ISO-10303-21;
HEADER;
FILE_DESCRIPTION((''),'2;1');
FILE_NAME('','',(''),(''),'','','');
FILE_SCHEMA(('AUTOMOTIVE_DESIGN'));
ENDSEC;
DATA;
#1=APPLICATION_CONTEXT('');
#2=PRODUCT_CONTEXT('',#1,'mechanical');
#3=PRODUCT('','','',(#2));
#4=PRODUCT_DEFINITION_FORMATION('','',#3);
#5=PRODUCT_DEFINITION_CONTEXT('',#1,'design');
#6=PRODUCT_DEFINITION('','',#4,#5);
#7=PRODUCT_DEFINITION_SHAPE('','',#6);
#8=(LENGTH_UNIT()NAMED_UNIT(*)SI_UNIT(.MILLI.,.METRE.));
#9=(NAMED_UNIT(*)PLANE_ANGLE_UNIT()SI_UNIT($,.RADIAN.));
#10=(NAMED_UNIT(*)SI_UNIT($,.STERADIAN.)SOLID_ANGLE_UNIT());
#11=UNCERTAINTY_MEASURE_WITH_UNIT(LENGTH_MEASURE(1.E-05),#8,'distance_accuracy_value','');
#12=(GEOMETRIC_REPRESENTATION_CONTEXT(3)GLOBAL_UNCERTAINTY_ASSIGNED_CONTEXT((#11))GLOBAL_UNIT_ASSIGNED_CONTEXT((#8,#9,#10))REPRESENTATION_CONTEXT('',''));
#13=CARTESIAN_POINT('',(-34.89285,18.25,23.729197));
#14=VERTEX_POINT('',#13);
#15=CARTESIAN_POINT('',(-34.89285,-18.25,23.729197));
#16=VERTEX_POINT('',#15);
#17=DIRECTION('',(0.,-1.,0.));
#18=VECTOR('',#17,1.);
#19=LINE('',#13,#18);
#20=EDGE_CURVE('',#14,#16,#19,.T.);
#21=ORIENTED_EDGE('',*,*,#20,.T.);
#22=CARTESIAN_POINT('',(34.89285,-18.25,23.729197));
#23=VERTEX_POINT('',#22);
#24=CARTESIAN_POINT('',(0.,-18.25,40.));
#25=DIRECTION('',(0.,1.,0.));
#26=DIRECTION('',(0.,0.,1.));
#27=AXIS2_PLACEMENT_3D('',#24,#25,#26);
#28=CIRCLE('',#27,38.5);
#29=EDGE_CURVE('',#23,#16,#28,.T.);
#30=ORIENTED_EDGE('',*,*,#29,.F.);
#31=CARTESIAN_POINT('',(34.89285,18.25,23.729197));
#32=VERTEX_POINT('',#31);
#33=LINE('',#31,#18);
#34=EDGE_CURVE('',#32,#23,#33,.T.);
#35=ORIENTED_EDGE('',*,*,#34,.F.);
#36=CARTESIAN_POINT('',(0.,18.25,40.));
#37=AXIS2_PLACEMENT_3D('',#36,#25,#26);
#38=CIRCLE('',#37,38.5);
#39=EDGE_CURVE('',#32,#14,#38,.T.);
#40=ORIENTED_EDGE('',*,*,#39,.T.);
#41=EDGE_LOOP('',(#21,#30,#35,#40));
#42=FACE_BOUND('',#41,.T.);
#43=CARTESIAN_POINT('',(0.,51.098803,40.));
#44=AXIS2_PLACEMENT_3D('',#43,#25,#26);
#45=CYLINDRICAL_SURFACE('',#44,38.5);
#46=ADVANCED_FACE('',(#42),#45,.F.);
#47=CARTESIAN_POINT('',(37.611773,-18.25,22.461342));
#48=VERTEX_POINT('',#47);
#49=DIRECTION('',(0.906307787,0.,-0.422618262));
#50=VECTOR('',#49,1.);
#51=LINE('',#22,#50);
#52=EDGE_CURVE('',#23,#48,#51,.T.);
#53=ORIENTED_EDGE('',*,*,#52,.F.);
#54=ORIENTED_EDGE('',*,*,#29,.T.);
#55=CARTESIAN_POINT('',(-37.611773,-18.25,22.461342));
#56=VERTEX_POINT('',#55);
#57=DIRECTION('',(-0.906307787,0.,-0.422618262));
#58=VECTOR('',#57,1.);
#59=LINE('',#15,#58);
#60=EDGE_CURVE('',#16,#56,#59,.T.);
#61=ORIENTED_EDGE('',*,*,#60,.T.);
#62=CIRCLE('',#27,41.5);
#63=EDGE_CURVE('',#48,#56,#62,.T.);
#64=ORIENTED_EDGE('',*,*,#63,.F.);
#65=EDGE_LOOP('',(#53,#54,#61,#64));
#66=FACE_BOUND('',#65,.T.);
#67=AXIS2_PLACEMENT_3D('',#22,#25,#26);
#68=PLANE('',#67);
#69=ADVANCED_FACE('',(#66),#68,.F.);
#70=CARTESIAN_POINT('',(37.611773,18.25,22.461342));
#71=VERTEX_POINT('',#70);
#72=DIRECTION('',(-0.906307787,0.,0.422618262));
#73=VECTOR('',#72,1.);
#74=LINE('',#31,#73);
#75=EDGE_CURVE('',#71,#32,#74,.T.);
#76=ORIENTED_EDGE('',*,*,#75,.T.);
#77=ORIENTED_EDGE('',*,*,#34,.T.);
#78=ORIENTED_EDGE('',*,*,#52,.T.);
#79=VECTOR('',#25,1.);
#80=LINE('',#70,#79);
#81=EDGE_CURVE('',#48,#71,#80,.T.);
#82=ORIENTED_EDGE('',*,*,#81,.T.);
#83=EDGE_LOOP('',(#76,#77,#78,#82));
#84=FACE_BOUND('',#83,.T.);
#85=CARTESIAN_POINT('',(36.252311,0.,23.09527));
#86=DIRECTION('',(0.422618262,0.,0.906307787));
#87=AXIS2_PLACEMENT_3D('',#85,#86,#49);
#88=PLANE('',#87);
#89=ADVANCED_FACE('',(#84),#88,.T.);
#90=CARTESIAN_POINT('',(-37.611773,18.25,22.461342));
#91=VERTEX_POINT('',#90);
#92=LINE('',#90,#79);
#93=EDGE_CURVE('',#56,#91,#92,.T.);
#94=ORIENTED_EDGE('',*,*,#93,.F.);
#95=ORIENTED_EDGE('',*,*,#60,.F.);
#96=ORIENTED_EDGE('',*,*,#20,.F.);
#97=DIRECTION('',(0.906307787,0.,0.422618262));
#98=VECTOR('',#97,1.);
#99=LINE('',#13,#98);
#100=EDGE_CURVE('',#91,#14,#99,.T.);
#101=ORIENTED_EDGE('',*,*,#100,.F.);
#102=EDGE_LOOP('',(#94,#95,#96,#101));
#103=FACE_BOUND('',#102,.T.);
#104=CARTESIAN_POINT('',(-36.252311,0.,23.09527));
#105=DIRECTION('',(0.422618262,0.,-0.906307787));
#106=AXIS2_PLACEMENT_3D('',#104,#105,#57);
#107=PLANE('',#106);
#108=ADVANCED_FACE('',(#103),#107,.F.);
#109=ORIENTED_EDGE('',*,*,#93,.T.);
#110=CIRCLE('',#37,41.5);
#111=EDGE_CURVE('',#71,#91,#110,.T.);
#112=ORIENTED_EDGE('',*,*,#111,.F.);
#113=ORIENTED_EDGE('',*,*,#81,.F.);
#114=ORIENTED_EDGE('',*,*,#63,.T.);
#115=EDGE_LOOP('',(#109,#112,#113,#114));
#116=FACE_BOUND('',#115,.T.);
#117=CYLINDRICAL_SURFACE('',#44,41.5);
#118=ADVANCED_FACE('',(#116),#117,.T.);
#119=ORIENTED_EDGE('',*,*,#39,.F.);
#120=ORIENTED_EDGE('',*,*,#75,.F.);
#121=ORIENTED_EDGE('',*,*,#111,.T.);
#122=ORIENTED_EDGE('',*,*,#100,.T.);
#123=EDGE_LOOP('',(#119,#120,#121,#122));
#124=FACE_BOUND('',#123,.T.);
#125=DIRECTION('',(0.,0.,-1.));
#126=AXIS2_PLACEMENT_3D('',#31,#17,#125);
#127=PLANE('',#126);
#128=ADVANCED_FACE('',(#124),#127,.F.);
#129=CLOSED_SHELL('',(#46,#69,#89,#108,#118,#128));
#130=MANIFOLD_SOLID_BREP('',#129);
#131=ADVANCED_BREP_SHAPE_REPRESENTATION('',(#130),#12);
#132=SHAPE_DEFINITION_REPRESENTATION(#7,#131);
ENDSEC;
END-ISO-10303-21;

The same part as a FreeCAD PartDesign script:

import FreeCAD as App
import Part
import Sketcher

doc = App.newDocument("Part")
body = doc.addObject("PartDesign::Body", "Body")

sketch1 = doc.addObject("Sketcher::SketchObject", "Sketch")
body.addObject(sketch1)
sketch1.AttachmentSupport = (doc.YZ_Plane, [""])
sketch1.MapMode = "FlatFace"
sketch1.addGeometry(Part.LineSegment(App.Vector(18.2, 1.5, 0), App.Vector(-18.2, 1.5, 0)), False)
sketch1.addGeometry(Part.LineSegment(App.Vector(-18.2, 1.5, 0), App.Vector(-18.2, -1.5, 0)), False)
sketch1.addGeometry(Part.LineSegment(App.Vector(-18.2, -1.5, 0), App.Vector(18.2, -1.5, 0)), False)
sketch1.addGeometry(Part.LineSegment(App.Vector(18.2, -1.5, 0), App.Vector(18.2, 1.5, 0)), False)
sketch1.addGeometry(Part.LineSegment(App.Vector(18.2, 40, 0), App.Vector(-18.2, 40, 0)), True)
sketch1.addConstraint(Sketcher.Constraint("Coincident", 0, 2, 1, 1))
sketch1.addConstraint(Sketcher.Constraint("Coincident", 1, 2, 2, 1))
sketch1.addConstraint(Sketcher.Constraint("Coincident", 2, 2, 3, 1))
sketch1.addConstraint(Sketcher.Constraint("Coincident", 3, 2, 0, 1))
sketch1.addConstraint(Sketcher.Constraint("Horizontal", 0))
sketch1.addConstraint(Sketcher.Constraint("Vertical", 1))
sketch1.addConstraint(Sketcher.Constraint("Horizontal", 2))
sketch1.addConstraint(Sketcher.Constraint("Vertical", 3))
sketch1.addConstraint(Sketcher.Constraint("Horizontal", 4))
sketch1.addConstraint(Sketcher.Constraint("Symmetric", 0, 2, 2, 2, -1, 1))
sketch1.addConstraint(Sketcher.Constraint("Vertical", 3, 2, 4, 1))
sketch1.addConstraint(Sketcher.Constraint("Vertical", 1, 2, 4, 2))
sketch1.addConstraint(Sketcher.Constraint("DistanceY", 1, 2, 1, 1, 3.0))
sketch1.addConstraint(Sketcher.Constraint("DistanceX", 0, 2, 0, 1, 36.5))
sketch1.addConstraint(Sketcher.Constraint("DistanceY", -1, 1, 4, 1, 40.0))
revolution = doc.addObject("PartDesign::Revolution", "Revolution")
body.addObject(revolution)
revolution.Profile = sketch1
revolution.ReferenceAxis = (sketch1, ["Axis0"])
revolution.Angle = 65

sketch2 = doc.addObject("Sketcher::SketchObject", "Sketch001")
body.addObject(sketch2)
sketch2.AttachmentSupport = (doc.YZ_Plane, [""])
sketch2.MapMode = "FlatFace"
sketch2.addGeometry(Part.LineSegment(App.Vector(18.2, 1.5, 0), App.Vector(-18.2, 1.5, 0)), False)
sketch2.addGeometry(Part.LineSegment(App.Vector(-18.2, 1.5, 0), App.Vector(-18.2, -1.5, 0)), False)
sketch2.addGeometry(Part.LineSegment(App.Vector(-18.2, -1.5, 0), App.Vector(18.2, -1.5, 0)), False)
sketch2.addGeometry(Part.LineSegment(App.Vector(18.2, -1.5, 0), App.Vector(18.2, 1.5, 0)), False)
sketch2.addGeometry(Part.LineSegment(App.Vector(-18.2, 40, 0), App.Vector(18.2, 40, 0)), True)
sketch2.addConstraint(Sketcher.Constraint("Coincident", 0, 2, 1, 1))
sketch2.addConstraint(Sketcher.Constraint("Coincident", 1, 2, 2, 1))
sketch2.addConstraint(Sketcher.Constraint("Coincident", 2, 2, 3, 1))
sketch2.addConstraint(Sketcher.Constraint("Coincident", 3, 2, 0, 1))
sketch2.addConstraint(Sketcher.Constraint("Horizontal", 0))
sketch2.addConstraint(Sketcher.Constraint("Vertical", 1))
sketch2.addConstraint(Sketcher.Constraint("Horizontal", 2))
sketch2.addConstraint(Sketcher.Constraint("Vertical", 3))
sketch2.addConstraint(Sketcher.Constraint("Horizontal", 4))
sketch2.addConstraint(Sketcher.Constraint("Symmetric", 0, 2, 2, 2, -1, 1))
sketch2.addConstraint(Sketcher.Constraint("Vertical", 1, 2, 4, 1))
sketch2.addConstraint(Sketcher.Constraint("Vertical", 3, 2, 4, 2))
sketch2.addConstraint(Sketcher.Constraint("DistanceY", 1, 2, 1, 1, 3.0))
sketch2.addConstraint(Sketcher.Constraint("DistanceX", 0, 2, 0, 1, 36.5))
sketch2.addConstraint(Sketcher.Constraint("DistanceY", -1, 1, 4, 1, 40.0))
revolution2 = doc.addObject("PartDesign::Revolution", "Revolution001")
body.addObject(revolution2)
revolution2.Profile = sketch2
revolution2.ReferenceAxis = (sketch2, ["Axis0"])
revolution2.Angle = 65

doc.recompute()
